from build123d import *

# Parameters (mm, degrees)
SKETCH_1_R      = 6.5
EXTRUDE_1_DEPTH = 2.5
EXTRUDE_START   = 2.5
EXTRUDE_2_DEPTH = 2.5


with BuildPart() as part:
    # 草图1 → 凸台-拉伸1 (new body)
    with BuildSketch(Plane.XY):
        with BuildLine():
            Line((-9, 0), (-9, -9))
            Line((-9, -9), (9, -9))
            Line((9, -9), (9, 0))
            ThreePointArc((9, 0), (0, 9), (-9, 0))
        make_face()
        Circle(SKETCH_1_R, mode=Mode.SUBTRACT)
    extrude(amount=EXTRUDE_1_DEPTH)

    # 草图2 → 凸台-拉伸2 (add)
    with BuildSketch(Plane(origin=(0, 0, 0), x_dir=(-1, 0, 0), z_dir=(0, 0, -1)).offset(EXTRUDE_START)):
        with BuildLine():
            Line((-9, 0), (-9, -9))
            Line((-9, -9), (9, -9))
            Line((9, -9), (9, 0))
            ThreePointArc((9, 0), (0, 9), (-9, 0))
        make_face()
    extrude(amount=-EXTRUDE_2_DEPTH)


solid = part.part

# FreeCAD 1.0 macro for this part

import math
import FreeCAD as App
import Part
import Sketcher

doc = App.newDocument("Part")
body = doc.addObject("PartDesign::Body", "Body")

sketch1 = doc.addObject("Sketcher::SketchObject", "Sketch")
body.addObject(sketch1)
sketch1.AttachmentSupport = (doc.XY_Plane, [""])
sketch1.MapMode = "FlatFace"
sketch1.addGeometry([
    Part.LineSegment(App.Vector(-9, 0, 0), App.Vector(-9, -9, 0)),
    Part.LineSegment(App.Vector(-9, -9, 0), App.Vector(9, -9, 0)),
    Part.LineSegment(App.Vector(9, -9, 0), App.Vector(9, 0, 0)),
    Part.ArcOfCircle(Part.Circle(App.Vector(0, 0, 0), App.Vector(0, 0, 1), 9), math.radians(0), math.radians(180)),
    Part.Circle(App.Vector(0, 0, 0), App.Vector(0, 0, 1), 6),
], False)
sketch1.addConstraint([
    Sketcher.Constraint("Coincident", 0, 2, 1, 1),
    Sketcher.Constraint("Coincident", 1, 2, 2, 1),
    Sketcher.Constraint("Tangent", 2, 2, 3, 1),
    Sketcher.Constraint("Tangent", 3, 2, 0, 1),
    Sketcher.Constraint("Vertical", 0),
    Sketcher.Constraint("Horizontal", 1),
    Sketcher.Constraint("Vertical", 2),
    Sketcher.Constraint("Coincident", 3, 3, -1, 1),
    Sketcher.Constraint("Coincident", 4, 3, -1, 1),
    Sketcher.Constraint("Diameter", 4, 13.0),
    Sketcher.Constraint("Radius", 3, 9.0),
    Sketcher.Constraint("DistanceY", 0, 2, 0, 1, 9.0),
])
pad1 = doc.addObject("PartDesign::Pad", "Pad")
body.addObject(pad1)
pad1.Profile = sketch1
pad1.Length = 2.5

sketch2 = doc.addObject("Sketcher::SketchObject", "Sketch001")
body.addObject(sketch2)
sketch2.AttachmentSupport = (doc.XY_Plane, [""])
sketch2.MapMode = "FlatFace"
sketch2.AttachmentOffset = App.Placement(App.Vector(0, 0, -2.5), App.Rotation())
sketch2.addGeometry([
    Part.LineSegment(App.Vector(9, 0, 0), App.Vector(9, -9, 0)),
    Part.LineSegment(App.Vector(9, -9, 0), App.Vector(-9, -9, 0)),
    Part.LineSegment(App.Vector(-9, -9, 0), App.Vector(-9, 0, 0)),
    Part.ArcOfCircle(Part.Circle(App.Vector(0, 0, 0), App.Vector(0, 0, 1), 9), math.radians(0), math.radians(180)),
], False)
sketch2.addConstraint([
    Sketcher.Constraint("Coincident", 0, 2, 1, 1),
    Sketcher.Constraint("Coincident", 1, 2, 2, 1),
    Sketcher.Constraint("Tangent", 2, 2, 3, 2),
    Sketcher.Constraint("Tangent", 3, 1, 0, 1),
    Sketcher.Constraint("Vertical", 0),
    Sketcher.Constraint("Horizontal", 1),
    Sketcher.Constraint("Vertical", 2),
    Sketcher.Constraint("Coincident", 3, 3, -1, 1),
    Sketcher.Constraint("Radius", 3, 9.0),
    Sketcher.Constraint("DistanceY", 0, 2, 0, 1, 9.0),
])
pad2 = doc.addObject("PartDesign::Pad", "Pad001")
body.addObject(pad2)
pad2.Profile = sketch2
pad2.Length = 2.5

doc.recompute()
